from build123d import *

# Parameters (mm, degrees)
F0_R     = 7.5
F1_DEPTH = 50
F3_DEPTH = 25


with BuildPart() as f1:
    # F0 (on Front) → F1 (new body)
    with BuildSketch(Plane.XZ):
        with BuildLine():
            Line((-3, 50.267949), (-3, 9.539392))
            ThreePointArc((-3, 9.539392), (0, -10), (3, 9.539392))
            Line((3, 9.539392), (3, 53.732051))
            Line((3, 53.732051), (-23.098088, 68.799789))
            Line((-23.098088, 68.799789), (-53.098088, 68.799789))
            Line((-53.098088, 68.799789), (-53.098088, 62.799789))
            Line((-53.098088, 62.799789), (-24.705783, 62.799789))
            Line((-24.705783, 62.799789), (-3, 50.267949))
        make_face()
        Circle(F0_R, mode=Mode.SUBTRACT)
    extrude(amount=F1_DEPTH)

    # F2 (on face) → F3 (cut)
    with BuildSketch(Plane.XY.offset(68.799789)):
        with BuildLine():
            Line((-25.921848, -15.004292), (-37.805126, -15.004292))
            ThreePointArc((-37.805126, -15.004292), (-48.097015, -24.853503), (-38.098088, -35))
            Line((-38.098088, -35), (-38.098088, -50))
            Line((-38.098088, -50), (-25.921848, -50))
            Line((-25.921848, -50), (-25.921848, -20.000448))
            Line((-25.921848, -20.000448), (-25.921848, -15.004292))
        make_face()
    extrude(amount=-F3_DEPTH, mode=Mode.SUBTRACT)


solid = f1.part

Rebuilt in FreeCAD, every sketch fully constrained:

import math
import FreeCAD as App
import Part
import Sketcher
from FreeCAD import Vector
Q = App.Units.Quantity

doc = App.newDocument("Part")
body = doc.addObject("PartDesign::Body", "Body")

# Sketch on XZ plane
sketch1 = body.newObject("Sketcher::SketchObject", "Sketch")
sketch1.AttachmentSupport = (doc.getObject("XZ_Plane"), [""])
sketch1.MapMode = "FlatFace"
sketch1.addGeometry(Part.LineSegment(Vector(-3, 50, 0), Vector(-3, 10, 0)), False)
sketch1.addGeometry(Part.ArcOfCircle(Part.Circle(Vector(0, 0, 0), Vector(0, 0, 1), 10), math.radians(107), math.radians(433)), False)
sketch1.addGeometry(Part.LineSegment(Vector(3, 10, 0), Vector(3, 54, 0)), False)
sketch1.addGeometry(Part.LineSegment(Vector(3, 54, 0), Vector(-23, 69, 0)), False)
sketch1.addGeometry(Part.LineSegment(Vector(-23, 69, 0), Vector(-53, 69, 0)), False)
sketch1.addGeometry(Part.LineSegment(Vector(-53, 69, 0), Vector(-53, 63, 0)), False)
sketch1.addGeometry(Part.LineSegment(Vector(-53, 63, 0), Vector(-25, 63, 0)), False)
sketch1.addGeometry(Part.LineSegment(Vector(-25, 63, 0), Vector(-3, 50, 0)), False)
sketch1.addGeometry(Part.Circle(Vector(0, 0, 0), Vector(0, 0, 1), 8), False)
sketch1.addConstraint(Sketcher.Constraint("Coincident", 0, 2, 1, 1))
sketch1.addConstraint(Sketcher.Constraint("Coincident", 1, 2, 2, 1))
sketch1.addConstraint(Sketcher.Constraint("Coincident", 2, 2, 3, 1))
sketch1.addConstraint(Sketcher.Constraint("Coincident", 3, 2, 4, 1))
sketch1.addConstraint(Sketcher.Constraint("Coincident", 4, 2, 5, 1))
sketch1.addConstraint(Sketcher.Constraint("Coincident", 5, 2, 6, 1))
sketch1.addConstraint(Sketcher.Constraint("Coincident", 6, 2, 7, 1))
sketch1.addConstraint(Sketcher.Constraint("Coincident", 7, 2, 0, 1))
sketch1.addConstraint(Sketcher.Constraint("Vertical", 0))
sketch1.addConstraint(Sketcher.Constraint("Vertical", 2))
sketch1.addConstraint(Sketcher.Constraint("Horizontal", 4))
sketch1.addConstraint(Sketcher.Constraint("Vertical", 5))
sketch1.addConstraint(Sketcher.Constraint("Horizontal", 6))
sketch1.addConstraint(Sketcher.Constraint("Coincident", 1, 3, -1, 1))
sketch1.addConstraint(Sketcher.Constraint("Coincident", 8, 3, -1, 1))
sketch1.addConstraint(Sketcher.Constraint("Parallel", 3, 7))
sketch1.addConstraint(Sketcher.Constraint("Horizontal", 0, 2, 1, 2))
sketch1.addConstraint(Sketcher.Constraint("Diameter", 8, 15.0))
sketch1.addConstraint(Sketcher.Constraint("Radius", 1, 10.0))
sketch1.addConstraint(Sketcher.Constraint("DistanceX", 4, 2, 4, 1, 30.0))
sketch1.addConstraint(Sketcher.Constraint("DistanceY", 5, 2, 5, 1, 6.0))
sketch1.addConstraint(Sketcher.Constraint("Angle", 3, Q("150 deg")))
sketch1.addConstraint(Sketcher.Constraint("DistanceX", 0, 2, -1, 1, 3.0))
sketch1.addConstraint(Sketcher.Constraint("DistanceY", 2, 1, 2, 2, 44.192659))
sketch1.addConstraint(Sketcher.Constraint("DistanceY", 7, 2, 2, 2, 3.464102))
sketch1.addConstraint(Sketcher.Constraint("Distance", 7, 25.063679))
pad1 = body.newObject("PartDesign::Pad", "Pad")
pad1.Profile = sketch1
pad1.Length = 50

# Sketch on XY plane
sketch2 = body.newObject("Sketcher::SketchObject", "Sketch001")
sketch2.AttachmentSupport = (doc.getObject("XY_Plane"), [""])
sketch2.MapMode = "FlatFace"
sketch2.AttachmentOffset = App.Placement(Vector(0, 0, 68.799789), App.Rotation())
sketch2.addGeometry(Part.LineSegment(Vector(-26, -15, 0), Vector(-38, -15, 0)), False)
sketch2.addGeometry(Part.ArcOfCircle(Part.Circle(Vector(-38, -25, 0), Vector(0, 0, 1), 10), math.radians(88), math.radians(270)), False)
sketch2.addGeometry(Part.LineSegment(Vector(-38, -35, 0), Vector(-38, -50, 0)), False)
sketch2.addGeometry(Part.LineSegment(Vector(-38, -50, 0), Vector(-26, -50, 0)), False)
sketch2.addGeometry(Part.LineSegment(Vector(-26, -50, 0), Vector(-26, -15, 0)), False)
sketch2.addConstraint(Sketcher.Constraint("Coincident", 0, 2, 1, 1))
sketch2.addConstraint(Sketcher.Constraint("Coincident", 1, 2, 2, 1))
sketch2.addConstraint(Sketcher.Constraint("Coincident", 2, 2, 3, 1))
sketch2.addConstraint(Sketcher.Constraint("Coincident", 3, 2, 4, 1))
sketch2.addConstraint(Sketcher.Constraint("Coincident", 4, 2, 0, 1))
sketch2.addConstraint(Sketcher.Constraint("Horizontal", 0))
sketch2.addConstraint(Sketcher.Constraint("Vertical", 2))
sketch2.addConstraint(Sketcher.Constraint("Horizontal", 3))
sketch2.addConstraint(Sketcher.Constraint("Vertical", 4))
sketch2.addConstraint(Sketcher.Constraint("Radius", 1, 10.0))
sketch2.addConstraint(Sketcher.Constraint("DistanceY", 2, 2, 2, 1, 15.0))
sketch2.addConstraint(Sketcher.Constraint("DistanceY", 1, 3, -1, 1, 25.0))
sketch2.addConstraint(Sketcher.Constraint("DistanceX", 0, 2, 0, 1, 11.883278))
sketch2.addConstraint(Sketcher.Constraint("DistanceX", 3, 1, 3, 2, 12.17624))
sketch2.addConstraint(Sketcher.Constraint("DistanceY", 4, 1, 4, 2, 34.995708))
sketch2.addConstraint(Sketcher.Constraint("DistanceX", 3, 2, -1, 1, 25.921848))
pocket1 = body.newObject("PartDesign::Pocket", "Pocket")
pocket1.Profile = sketch2
pocket1.Length = 25

doc.recompute()
